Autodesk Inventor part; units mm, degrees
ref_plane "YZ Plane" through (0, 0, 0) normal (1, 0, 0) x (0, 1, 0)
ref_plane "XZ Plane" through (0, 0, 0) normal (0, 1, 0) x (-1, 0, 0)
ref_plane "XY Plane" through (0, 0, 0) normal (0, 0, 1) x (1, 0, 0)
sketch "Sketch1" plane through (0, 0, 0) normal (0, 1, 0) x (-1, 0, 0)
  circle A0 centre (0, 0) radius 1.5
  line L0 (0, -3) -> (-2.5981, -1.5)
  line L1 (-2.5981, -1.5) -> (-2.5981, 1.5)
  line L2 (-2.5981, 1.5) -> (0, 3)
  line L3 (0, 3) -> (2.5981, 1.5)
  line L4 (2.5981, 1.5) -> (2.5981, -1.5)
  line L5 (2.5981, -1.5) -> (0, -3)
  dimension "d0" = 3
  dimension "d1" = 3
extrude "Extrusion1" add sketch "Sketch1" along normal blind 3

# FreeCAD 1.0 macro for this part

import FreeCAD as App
import Part
import Sketcher
from FreeCAD import Vector

doc = App.newDocument("Part")
body = doc.addObject("PartDesign::Body", "Body")

sketch1 = body.newObject("Sketcher::SketchObject", "Sketch")
sketch1.AttachmentSupport = (doc.getObject("XZ_Plane"), [""])
sketch1.MapMode = "FlatFace"
sketch1.addGeometry(Part.LineSegment(Vector(2.6, -1.5, 0), Vector(0, -3, 0)), False)
sketch1.addGeometry(Part.LineSegment(Vector(0, -3, 0), Vector(-2.6, -1.5, 0)), False)
sketch1.addGeometry(Part.LineSegment(Vector(-2.6, -1.5, 0), Vector(-2.6, 1.5, 0)), False)
sketch1.addGeometry(Part.LineSegment(Vector(-2.6, 1.5, 0), Vector(0, 3, 0)), False)
sketch1.addGeometry(Part.LineSegment(Vector(0, 3, 0), Vector(2.6, 1.5, 0)), False)
sketch1.addGeometry(Part.LineSegment(Vector(2.6, 1.5, 0), Vector(2.6, -1.5, 0)), False)
sketch1.addGeometry(Part.Circle(Vector(0, 0, 0), Vector(0, 0, 1), 1.5), False)
sketch1.addConstraint(Sketcher.Constraint("Coincident", 0, 2, 1, 1))
sketch1.addConstraint(Sketcher.Constraint("Coincident", 1, 2, 2, 1))
sketch1.addConstraint(Sketcher.Constraint("Coincident", 2, 2, 3, 1))
sketch1.addConstraint(Sketcher.Constraint("Coincident", 3, 2, 4, 1))
sketch1.addConstraint(Sketcher.Constraint("Coincident", 4, 2, 5, 1))
sketch1.addConstraint(Sketcher.Constraint("Coincident", 5, 2, 0, 1))
sketch1.addConstraint(Sketcher.Constraint("Vertical", 2))
sketch1.addConstraint(Sketcher.Constraint("Vertical", 5))
sketch1.addConstraint(Sketcher.Constraint("Coincident", 6, 3, -1, 1))
sketch1.addConstraint(Sketcher.Constraint("Symmetric", 0, 2, 3, 2, -1, 1))
sketch1.addConstraint(Sketcher.Constraint("Symmetric", 1, 2, 4, 2, -1, 1))
sketch1.addConstraint(Sketcher.Constraint("PointOnObject", 0, 2, -2))
sketch1.addConstraint(Sketcher.Constraint("Parallel", 0, 3))
sketch1.addConstraint(Sketcher.Constraint("Horizontal", 2, 2, 4, 2))
sketch1.addConstraint(Sketcher.Constraint("Diameter", 6, 3.0))
sketch1.addConstraint(Sketcher.Constraint("DistanceY", 2, 1, 2, 2, 3.0))
sketch1.addConstraint(Sketcher.Constraint("Distance", 0, 3.0))
sketch1.addConstraint(Sketcher.Constraint("DistanceY", 0, 2, -1, 1, 3.0))
pad1 = body.newObject("PartDesign::Pad", "Pad")
pad1.Profile = sketch1
pad1.Length = 3
pad1.Reversed = True

doc.recompute()
